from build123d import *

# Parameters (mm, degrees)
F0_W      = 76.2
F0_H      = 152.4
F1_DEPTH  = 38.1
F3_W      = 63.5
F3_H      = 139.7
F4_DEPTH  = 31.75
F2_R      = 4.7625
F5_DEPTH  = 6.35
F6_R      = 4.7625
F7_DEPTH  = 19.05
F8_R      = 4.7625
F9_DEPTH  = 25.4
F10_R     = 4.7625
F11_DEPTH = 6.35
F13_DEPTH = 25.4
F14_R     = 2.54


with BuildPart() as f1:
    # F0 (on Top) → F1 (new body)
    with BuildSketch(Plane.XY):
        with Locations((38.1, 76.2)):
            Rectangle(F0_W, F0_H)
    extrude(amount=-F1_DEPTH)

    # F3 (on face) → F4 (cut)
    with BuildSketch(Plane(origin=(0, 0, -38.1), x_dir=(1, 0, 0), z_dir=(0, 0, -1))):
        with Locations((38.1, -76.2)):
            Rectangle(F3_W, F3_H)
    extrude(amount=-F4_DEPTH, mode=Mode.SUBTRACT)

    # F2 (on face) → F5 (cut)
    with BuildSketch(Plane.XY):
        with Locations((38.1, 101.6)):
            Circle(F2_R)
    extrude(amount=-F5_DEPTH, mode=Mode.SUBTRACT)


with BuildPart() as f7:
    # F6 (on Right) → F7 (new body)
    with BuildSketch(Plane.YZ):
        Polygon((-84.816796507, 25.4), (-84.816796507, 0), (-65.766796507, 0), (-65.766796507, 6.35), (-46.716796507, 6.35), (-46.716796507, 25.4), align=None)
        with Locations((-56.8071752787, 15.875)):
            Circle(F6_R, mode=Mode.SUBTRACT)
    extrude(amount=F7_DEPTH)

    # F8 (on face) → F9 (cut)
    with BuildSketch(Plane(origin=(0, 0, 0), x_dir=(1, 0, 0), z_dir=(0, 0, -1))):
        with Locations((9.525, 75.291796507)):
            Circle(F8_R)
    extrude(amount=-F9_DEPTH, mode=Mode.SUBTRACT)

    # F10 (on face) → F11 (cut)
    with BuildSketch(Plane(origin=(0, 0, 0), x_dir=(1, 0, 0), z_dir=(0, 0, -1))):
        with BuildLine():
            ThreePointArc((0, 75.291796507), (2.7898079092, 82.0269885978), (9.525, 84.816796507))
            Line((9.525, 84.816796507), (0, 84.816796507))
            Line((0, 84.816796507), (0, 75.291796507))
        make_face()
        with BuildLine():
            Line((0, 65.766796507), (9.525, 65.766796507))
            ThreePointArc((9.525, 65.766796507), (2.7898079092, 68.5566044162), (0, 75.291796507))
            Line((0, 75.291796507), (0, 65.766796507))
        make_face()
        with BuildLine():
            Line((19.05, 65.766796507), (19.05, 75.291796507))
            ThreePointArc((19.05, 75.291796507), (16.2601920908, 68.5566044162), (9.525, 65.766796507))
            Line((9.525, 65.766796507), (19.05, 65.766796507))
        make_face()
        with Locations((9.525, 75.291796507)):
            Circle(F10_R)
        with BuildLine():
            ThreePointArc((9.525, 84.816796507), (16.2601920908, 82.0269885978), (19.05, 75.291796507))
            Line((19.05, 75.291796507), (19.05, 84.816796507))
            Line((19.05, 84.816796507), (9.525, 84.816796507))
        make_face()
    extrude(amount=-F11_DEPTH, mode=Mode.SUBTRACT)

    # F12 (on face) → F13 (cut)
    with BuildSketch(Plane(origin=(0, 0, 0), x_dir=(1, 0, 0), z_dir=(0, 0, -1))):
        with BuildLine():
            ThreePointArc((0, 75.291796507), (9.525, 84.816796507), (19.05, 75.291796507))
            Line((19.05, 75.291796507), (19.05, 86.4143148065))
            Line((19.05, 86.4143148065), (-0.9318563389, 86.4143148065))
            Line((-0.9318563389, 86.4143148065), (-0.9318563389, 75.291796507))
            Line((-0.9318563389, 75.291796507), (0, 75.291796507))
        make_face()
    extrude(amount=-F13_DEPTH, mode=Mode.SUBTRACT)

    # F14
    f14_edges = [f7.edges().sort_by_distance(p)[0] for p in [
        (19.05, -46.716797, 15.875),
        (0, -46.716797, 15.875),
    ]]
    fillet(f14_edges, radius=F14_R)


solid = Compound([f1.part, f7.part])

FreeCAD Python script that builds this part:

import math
import FreeCAD as App
import Part
import Sketcher
from FreeCAD import Vector
Q = App.Units.Quantity


def edges_at(feature, points):
    """Names of the edges that pass closest to the given points."""
    edges = feature.Shape.Edges
    near = lambda p: min(range(len(edges)), key=lambda i: edges[i].distToShape(Part.Vertex(*p))[0])
    return sorted({f"Edge{near(p) + 1}" for p in points})


def add_polygon(sketch, points):
    """Adds a closed chain of lines whose ends are joined by coincident constraints."""
    first, n = sketch.GeometryCount, len(points)
    for a, b in zip(points, points[1:] + points[:1]):
        sketch.addGeometry(Part.LineSegment(App.Vector(*a, 0), App.Vector(*b, 0)), False)
    for i in range(n):
        sketch.addConstraint(Sketcher.Constraint("Coincident", first + i, 2, first + (i + 1) % n, 1))

doc = App.newDocument("Part")
body = doc.addObject("PartDesign::Body", "Body")

sketch1 = body.newObject("Sketcher::SketchObject", "Sketch")
sketch1.AttachmentSupport = (doc.getObject("XY_Plane"), [""])
sketch1.MapMode = "FlatFace"
add_polygon(sketch1, [(0, 152), (0, 0), (76, 0), (76, 152)])
sketch1.addConstraint(Sketcher.Constraint("Vertical", 0))
sketch1.addConstraint(Sketcher.Constraint("Horizontal", 1))
sketch1.addConstraint(Sketcher.Constraint("Vertical", 2))
sketch1.addConstraint(Sketcher.Constraint("Horizontal", 3))
sketch1.addConstraint(Sketcher.Constraint("Coincident", 0, 2, -1, 1))
sketch1.addConstraint(Sketcher.Constraint("DistanceX", 1, 1, 1, 2, Q("3 in")))
sketch1.addConstraint(Sketcher.Constraint("DistanceY", 0, 2, 0, 1, Q("6 in")))
pad1 = body.newObject("PartDesign::Pad", "Pad")
pad1.Profile = sketch1
pad1.Length = Q("1.5 in")
pad1.Reversed = True

sketch2 = body.newObject("Sketcher::SketchObject", "Sketch001")
sketch2.AttachmentSupport = (doc.getObject("XY_Plane"), [""])
sketch2.MapMode = "FlatFace"
sketch2.AttachmentOffset = App.Placement(Vector(0, 0, -1.5 * 25.4), App.Rotation())
add_polygon(sketch2, [(6, 6), (6, 146), (70, 146), (70, 6)])
sketch2.addConstraint(Sketcher.Constraint("Vertical", 0))
sketch2.addConstraint(Sketcher.Constraint("Horizontal", 1))
sketch2.addConstraint(Sketcher.Constraint("Vertical", 2))
sketch2.addConstraint(Sketcher.Constraint("Horizontal", 3))
sketch2.addConstraint(Sketcher.Constraint("DistanceX", 1, 1, 1, 2, Q("2.5 in")))
sketch2.addConstraint(Sketcher.Constraint("DistanceY", 0, 1, 0, 2, Q("5.5 in")))
sketch2.addConstraint(Sketcher.Constraint("DistanceX", -1, 1, 0, 2, Q("0.25 in")))
sketch2.addConstraint(Sketcher.Constraint("DistanceY", -1, 1, 0, 2, Q("5.75 in")))
pocket1 = body.newObject("PartDesign::Pocket", "Pocket")
pocket1.Profile = sketch2
pocket1.Length = Q("1.25 in")
pocket1.Reversed = True

sketch3 = body.newObject("Sketcher::SketchObject", "Sketch002")
sketch3.AttachmentSupport = (doc.getObject("XY_Plane"), [""])
sketch3.MapMode = "FlatFace"
sketch3.addGeometry(Part.Circle(Vector(38.1, 101.6, 0), Vector(0, 0, 1), 4.8), False)
sketch3.addConstraint(Sketcher.Constraint("Diameter", 0, Q("0.375 in")))
sketch3.addConstraint(Sketcher.Constraint("DistanceY", -1, 1, 0, 3, Q("4 in")))
sketch3.addConstraint(Sketcher.Constraint("DistanceX", -1, 1, 0, 3, Q("1.5 in")))
pocket2 = body.newObject("PartDesign::Pocket", "Pocket001")
pocket2.Profile = sketch3
pocket2.Length = Q("0.25 in")
body2 = doc.addObject("PartDesign::Body", "Body001")

sketch4 = body2.newObject("Sketcher::SketchObject", "Sketch003")
sketch4.AttachmentSupport = (doc.getObject("YZ_Plane001"), [""])
sketch4.MapMode = "FlatFace"
add_polygon(sketch4, [(-84.8, 25.4), (-84.8, 0), (-65.8, 0), (-65.8, 6.3), (-46.7, 6.3), (-46.7, 25.4)])
sketch4.addGeometry(Part.Circle(Vector(-56.8, 15.9, 0), Vector(0, 0, 1), 4.8), False)
sketch4.addConstraint(Sketcher.Constraint("Vertical", 0))
sketch4.addConstraint(Sketcher.Constraint("Horizontal", 1))
sketch4.addConstraint(Sketcher.Constraint("Vertical", 2))
sketch4.addConstraint(Sketcher.Constraint("Horizontal", 3))
sketch4.addConstraint(Sketcher.Constraint("Vertical", 4))
sketch4.addConstraint(Sketcher.Constraint("Horizontal", 5))
sketch4.addConstraint(Sketcher.Constraint("PointOnObject", 0, 2, -1))
sketch4.addConstraint(Sketcher.Constraint("Equal", 1, 3))
sketch4.addConstraint(Sketcher.Constraint("Equal", 3, 4))
sketch4.addConstraint(Sketcher.Constraint("DistanceY", 0, 2, 0, 1, Q("1 in")))
sketch4.addConstraint(Sketcher.Constraint("Diameter", 6, Q("0.375 in")))
sketch4.addConstraint(Sketcher.Constraint("DistanceX", 5, 2, 5, 1, Q("1.5 in")))
sketch4.addConstraint(Sketcher.Constraint("DistanceY", -1, 1, 6, 3, Q("0.625 in")))
sketch4.addConstraint(Sketcher.Constraint("DistanceX", 0, 2, 6, 3, Q("28.009621 mm")))
sketch4.addConstraint(Sketcher.Constraint("DistanceX", 6, 3, -1, 1, Q("56.807175 mm")))
pad2 = body2.newObject("PartDesign::Pad", "Pad001")
pad2.Profile = sketch4
pad2.Length = Q("0.75 in")

sketch5 = body2.newObject("Sketcher::SketchObject", "Sketch004")
sketch5.AttachmentSupport = (doc.getObject("XY_Plane001"), [""])
sketch5.MapMode = "FlatFace"
sketch5.addGeometry(Part.Circle(Vector(9.5, -75.3, 0), Vector(0, 0, 1), 4.8), False)
sketch5.addConstraint(Sketcher.Constraint("Diameter", 0, Q("0.375 in")))
sketch5.addConstraint(Sketcher.Constraint("DistanceX", -1, 1, 0, 3, Q("0.375 in")))
sketch5.addConstraint(Sketcher.Constraint("DistanceY", 0, 3, -1, 1, Q("75.291797 mm")))
pocket3 = body2.newObject("PartDesign::Pocket", "Pocket002")
pocket3.Profile = sketch5
pocket3.Length = Q("1 in")
pocket3.Reversed = True

sketch6 = body2.newObject("Sketcher::SketchObject", "Sketch005")
sketch6.AttachmentSupport = (doc.getObject("XY_Plane001"), [""])
sketch6.MapMode = "FlatFace"
sketch6.addGeometry(Part.ArcOfCircle(Part.Circle(Vector(9.5, -75.3, 0), Vector(0, 0, 1), 9.5), math.radians(180), math.radians(270)), False)
sketch6.addGeometry(Part.LineSegment(Vector(9.5, -84.8, 0), Vector(0, -84.8, 0)), False)
sketch6.addGeometry(Part.LineSegment(Vector(0, -84.8, 0), Vector(0, -75.3, 0)), False)
sketch6.addGeometry(Part.LineSegment(Vector(0, -65.8, 0), Vector(9.5, -65.8, 0)), False)
sketch6.addGeometry(Part.ArcOfCircle(Part.Circle(Vector(9.5, -75.3, 0), Vector(0, 0, 1), 9.5), math.radians(90), math.radians(180)), False)
sketch6.addGeometry(Part.LineSegment(Vector(0, -75.3, 0), Vector(0, -65.8, 0)), False)
sketch6.addGeometry(Part.LineSegment(Vector(19.1, -65.8, 0), Vector(19.1, -75.3, 0)), False)
sketch6.addGeometry(Part.ArcOfCircle(Part.Circle(Vector(9.5, -75.3, 0), Vector(0, 0, 1), 9.5), math.radians(0), math.radians(90)), False)
sketch6.addGeometry(Part.LineSegment(Vector(9.5, -65.8, 0), Vector(19.1, -65.8, 0)), False)
sketch6.addGeometry(Part.Circle(Vector(9.5, -75.3, 0), Vector(0, 0, 1), 4.8), False)
sketch6.addGeometry(Part.ArcOfCircle(Part.Circle(Vector(9.5, -75.3, 0), Vector(0, 0, 1), 9.5), math.radians(-90), math.radians(0)), False)
sketch6.addGeometry(Part.LineSegment(Vector(19.1, -75.3, 0), Vector(19.1, -84.8, 0)), False)
sketch6.addGeometry(Part.LineSegment(Vector(19.1, -84.8, 0), Vector(9.5, -84.8, 0)), False)
sketch6.addConstraint(Sketcher.Constraint("Tangent", 0, 2, 1, 1))
sketch6.addConstraint(Sketcher.Constraint("Coincident", 1, 2, 2, 1))
sketch6.addConstraint(Sketcher.Constraint("Tangent", 2, 2, 0, 1))
sketch6.addConstraint(Sketcher.Constraint("Tangent", 3, 2, 4, 1))
sketch6.addConstraint(Sketcher.Constraint("Tangent", 4, 2, 5, 1))
sketch6.addConstraint(Sketcher.Constraint("Coincident", 5, 2, 3, 1))
sketch6.addConstraint(Sketcher.Constraint("Tangent", 6, 2, 7, 1))
sketch6.addConstraint(Sketcher.Constraint("Tangent", 7, 2, 8, 1))
sketch6.addConstraint(Sketcher.Constraint("Coincident", 8, 2, 6, 1))
sketch6.addConstraint(Sketcher.Constraint("Tangent", 10, 2, 11, 1))
sketch6.addConstraint(Sketcher.Constraint("Coincident", 11, 2, 12, 1))
sketch6.addConstraint(Sketcher.Constraint("Tangent", 12, 2, 10, 1))
sketch6.addConstraint(Sketcher.Constraint("Horizontal", 1))
sketch6.addConstraint(Sketcher.Constraint("Vertical", 2))
sketch6.addConstraint(Sketcher.Constraint("Horizontal", 3))
sketch6.addConstraint(Sketcher.Constraint("Vertical", 5))
sketch6.addConstraint(Sketcher.Constraint("Vertical", 6))
sketch6.addConstraint(Sketcher.Constraint("Horizontal", 8))
sketch6.addConstraint(Sketcher.Constraint("Vertical", 11))
sketch6.addConstraint(Sketcher.Constraint("Horizontal", 12))
sketch6.addConstraint(Sketcher.Constraint("Coincident", 4, 3, 0, 3))
sketch6.addConstraint(Sketcher.Constraint("Coincident", 7, 3, 0, 3))
sketch6.addConstraint(Sketcher.Constraint("Coincident", 9, 3, 0, 3))
sketch6.addConstraint(Sketcher.Constraint("Coincident", 10, 3, 0, 3))
sketch6.addConstraint(Sketcher.Constraint("Equal", 0, 4))
sketch6.addConstraint(Sketcher.Constraint("Equal", 4, 7))
sketch6.addConstraint(Sketcher.Constraint("Equal", 7, 10))
sketch6.addConstraint(Sketcher.Constraint("PointOnObject", 1, 2, -2))
sketch6.addConstraint(Sketcher.Constraint("Diameter", 9, Q("0.375 in")))
sketch6.addConstraint(Sketcher.Constraint("Radius", 0, Q("0.375 in")))
sketch6.addConstraint(Sketcher.Constraint("DistanceY", 0, 3, -1, 1, Q("75.291797 mm")))
pocket4 = body2.newObject("PartDesign::Pocket", "Pocket003")
pocket4.Profile = sketch6
pocket4.Length = Q("0.25 in")
pocket4.Reversed = True

sketch7 = body2.newObject("Sketcher::SketchObject", "Sketch006")
sketch7.AttachmentSupport = (doc.getObject("XY_Plane001"), [""])
sketch7.MapMode = "FlatFace"
sketch7.addGeometry(Part.ArcOfCircle(Part.Circle(Vector(9.5, -75.3, 0), Vector(0, 0, 1), 9.5), math.radians(180), math.radians(360)), False)
sketch7.addGeometry(Part.LineSegment(Vector(19.1, -75.3, 0), Vector(19.1, -86.4, 0)), False)
sketch7.addGeometry(Part.LineSegment(Vector(19.1, -86.4, 0), Vector(-0.9, -86.4, 0)), False)
sketch7.addGeometry(Part.LineSegment(Vector(-0.9, -86.4, 0), Vector(-0.9, -75.3, 0)), False)
sketch7.addGeometry(Part.LineSegment(Vector(-0.9, -75.3, 0), Vector(0, -75.3, 0)), False)
sketch7.addConstraint(Sketcher.Constraint("Tangent", 0, 2, 1, 1))
sketch7.addConstraint(Sketcher.Constraint("Coincident", 1, 2, 2, 1))
sketch7.addConstraint(Sketcher.Constraint("Coincident", 2, 2, 3, 1))
sketch7.addConstraint(Sketcher.Constraint("Coincident", 3, 2, 4, 1))
sketch7.addConstraint(Sketcher.Constraint("Coincident", 4, 2, 0, 1))
sketch7.addConstraint(Sketcher.Constraint("Vertical", 1))
sketch7.addConstraint(Sketcher.Constraint("Horizontal", 2))
sketch7.addConstraint(Sketcher.Constraint("Vertical", 3))
sketch7.addConstraint(Sketcher.Constraint("Horizontal", 4))
sketch7.addConstraint(Sketcher.Constraint("PointOnObject", 4, 2, -2))
sketch7.addConstraint(Sketcher.Constraint("Horizontal", 0, 2, 3, 2))
sketch7.addConstraint(Sketcher.Constraint("Radius", 0, Q("0.375 in")))
sketch7.addConstraint(Sketcher.Constraint("DistanceY", 1, 2, 1, 1, Q("11.122518 mm")))
sketch7.addConstraint(Sketcher.Constraint("DistanceX", 2, 2, 2, 1, Q("19.981856 mm")))
sketch7.addConstraint(Sketcher.Constraint("DistanceY", 0, 3, -1, 1, Q("75.291797 mm")))
pocket5 = body2.newObject("PartDesign::Pocket", "Pocket004")
pocket5.Profile = sketch7
pocket5.Length = Q("1 in")
pocket5.Reversed = True
doc.recompute()

fillet = body2.newObject("PartDesign::Fillet", "Fillet")
fillet.Base = (pocket5, edges_at(pocket5, [(19.05, -46.717, 15.875), (0, -46.717, 15.875)]))
fillet.Radius = Q("0.1 in")

doc.recompute()
